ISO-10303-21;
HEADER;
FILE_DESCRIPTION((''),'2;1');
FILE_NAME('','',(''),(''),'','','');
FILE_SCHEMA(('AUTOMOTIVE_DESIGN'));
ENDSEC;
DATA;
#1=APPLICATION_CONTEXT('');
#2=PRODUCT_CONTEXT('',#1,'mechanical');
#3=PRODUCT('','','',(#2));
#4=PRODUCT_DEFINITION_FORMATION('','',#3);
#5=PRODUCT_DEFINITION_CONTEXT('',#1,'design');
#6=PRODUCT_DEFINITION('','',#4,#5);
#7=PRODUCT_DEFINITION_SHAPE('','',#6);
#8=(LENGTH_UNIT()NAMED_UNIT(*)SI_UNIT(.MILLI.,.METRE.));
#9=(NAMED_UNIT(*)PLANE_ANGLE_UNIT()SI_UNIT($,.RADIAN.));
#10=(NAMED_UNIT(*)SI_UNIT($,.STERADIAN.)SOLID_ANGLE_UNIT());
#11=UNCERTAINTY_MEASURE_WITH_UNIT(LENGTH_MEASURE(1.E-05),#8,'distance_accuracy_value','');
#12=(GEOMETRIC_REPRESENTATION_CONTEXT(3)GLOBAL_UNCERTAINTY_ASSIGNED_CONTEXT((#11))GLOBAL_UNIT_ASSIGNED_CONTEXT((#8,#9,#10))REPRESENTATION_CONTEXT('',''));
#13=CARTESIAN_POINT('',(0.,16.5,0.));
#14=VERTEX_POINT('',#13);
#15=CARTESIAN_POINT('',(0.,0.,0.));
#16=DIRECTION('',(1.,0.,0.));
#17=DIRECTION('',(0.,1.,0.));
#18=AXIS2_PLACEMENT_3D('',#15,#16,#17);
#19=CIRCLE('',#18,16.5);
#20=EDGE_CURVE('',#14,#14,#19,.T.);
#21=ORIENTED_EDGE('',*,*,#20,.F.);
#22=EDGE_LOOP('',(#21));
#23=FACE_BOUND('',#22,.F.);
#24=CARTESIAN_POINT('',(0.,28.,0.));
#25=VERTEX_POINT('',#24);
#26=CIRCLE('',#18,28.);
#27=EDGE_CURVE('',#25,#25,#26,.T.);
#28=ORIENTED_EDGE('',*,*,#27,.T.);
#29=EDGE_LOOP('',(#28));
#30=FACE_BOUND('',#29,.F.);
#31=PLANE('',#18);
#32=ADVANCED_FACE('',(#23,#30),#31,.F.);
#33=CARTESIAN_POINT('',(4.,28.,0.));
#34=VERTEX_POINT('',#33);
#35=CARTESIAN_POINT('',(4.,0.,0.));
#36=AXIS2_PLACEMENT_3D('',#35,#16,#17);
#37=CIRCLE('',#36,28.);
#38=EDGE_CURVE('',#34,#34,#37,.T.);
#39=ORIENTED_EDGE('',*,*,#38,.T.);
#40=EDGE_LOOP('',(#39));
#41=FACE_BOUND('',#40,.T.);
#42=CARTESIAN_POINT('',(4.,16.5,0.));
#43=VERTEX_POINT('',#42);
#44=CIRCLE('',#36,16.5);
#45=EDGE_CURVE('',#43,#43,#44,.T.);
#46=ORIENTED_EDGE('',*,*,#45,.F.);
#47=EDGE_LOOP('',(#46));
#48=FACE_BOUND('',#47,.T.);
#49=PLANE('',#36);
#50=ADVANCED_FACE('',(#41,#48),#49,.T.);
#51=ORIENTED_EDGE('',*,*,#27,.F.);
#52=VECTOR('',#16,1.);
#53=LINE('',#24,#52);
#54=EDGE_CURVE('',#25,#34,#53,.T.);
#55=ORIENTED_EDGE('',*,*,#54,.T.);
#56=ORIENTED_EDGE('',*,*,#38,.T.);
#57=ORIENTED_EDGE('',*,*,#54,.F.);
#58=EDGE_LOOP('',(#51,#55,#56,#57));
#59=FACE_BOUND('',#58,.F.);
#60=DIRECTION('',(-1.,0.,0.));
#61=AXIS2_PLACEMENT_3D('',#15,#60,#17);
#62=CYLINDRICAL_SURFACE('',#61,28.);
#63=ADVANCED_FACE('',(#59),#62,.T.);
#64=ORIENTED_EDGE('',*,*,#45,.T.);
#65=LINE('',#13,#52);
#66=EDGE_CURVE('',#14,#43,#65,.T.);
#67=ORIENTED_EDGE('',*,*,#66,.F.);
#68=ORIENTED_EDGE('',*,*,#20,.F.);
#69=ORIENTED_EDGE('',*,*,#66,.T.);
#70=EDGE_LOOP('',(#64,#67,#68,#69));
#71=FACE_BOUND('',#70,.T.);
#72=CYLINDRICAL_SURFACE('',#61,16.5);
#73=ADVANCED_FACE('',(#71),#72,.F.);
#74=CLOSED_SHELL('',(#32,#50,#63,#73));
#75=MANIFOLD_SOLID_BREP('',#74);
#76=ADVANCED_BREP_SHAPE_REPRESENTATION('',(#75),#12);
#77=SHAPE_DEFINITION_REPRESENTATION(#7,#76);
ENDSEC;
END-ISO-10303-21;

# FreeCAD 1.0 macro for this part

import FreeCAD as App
import Part
import Sketcher
Q = App.Units.Quantity

doc = App.newDocument("Part")
body = doc.addObject("PartDesign::Body", "Body")

# Sketch on YZ plane
sketch1 = body.newObject("Sketcher::SketchObject", "Sketch")
sketch1.AttachmentSupport = (doc.getObject("YZ_Plane"), [""])
sketch1.MapMode = "FlatFace"
sketch1.addGeometry([
    Part.Circle(App.Vector(0, 0, 0), App.Vector(0, 0, 1), 28),
    Part.Circle(App.Vector(0, 0, 0), App.Vector(0, 0, 1), 16.5),
], False)
sketch1.addConstraint([
    Sketcher.Constraint("Coincident", 0, 3, -1, 1),
    Sketcher.Constraint("Coincident", 1, 3, -1, 1),
    Sketcher.Constraint("Diameter", 0, Q("56 mm")),
    Sketcher.Constraint("Diameter", 1, Q("33 mm")),
])
pad1 = body.newObject("PartDesign::Pad", "Pad")
pad1.Profile = sketch1
pad1.Length = 4

doc.recompute()
